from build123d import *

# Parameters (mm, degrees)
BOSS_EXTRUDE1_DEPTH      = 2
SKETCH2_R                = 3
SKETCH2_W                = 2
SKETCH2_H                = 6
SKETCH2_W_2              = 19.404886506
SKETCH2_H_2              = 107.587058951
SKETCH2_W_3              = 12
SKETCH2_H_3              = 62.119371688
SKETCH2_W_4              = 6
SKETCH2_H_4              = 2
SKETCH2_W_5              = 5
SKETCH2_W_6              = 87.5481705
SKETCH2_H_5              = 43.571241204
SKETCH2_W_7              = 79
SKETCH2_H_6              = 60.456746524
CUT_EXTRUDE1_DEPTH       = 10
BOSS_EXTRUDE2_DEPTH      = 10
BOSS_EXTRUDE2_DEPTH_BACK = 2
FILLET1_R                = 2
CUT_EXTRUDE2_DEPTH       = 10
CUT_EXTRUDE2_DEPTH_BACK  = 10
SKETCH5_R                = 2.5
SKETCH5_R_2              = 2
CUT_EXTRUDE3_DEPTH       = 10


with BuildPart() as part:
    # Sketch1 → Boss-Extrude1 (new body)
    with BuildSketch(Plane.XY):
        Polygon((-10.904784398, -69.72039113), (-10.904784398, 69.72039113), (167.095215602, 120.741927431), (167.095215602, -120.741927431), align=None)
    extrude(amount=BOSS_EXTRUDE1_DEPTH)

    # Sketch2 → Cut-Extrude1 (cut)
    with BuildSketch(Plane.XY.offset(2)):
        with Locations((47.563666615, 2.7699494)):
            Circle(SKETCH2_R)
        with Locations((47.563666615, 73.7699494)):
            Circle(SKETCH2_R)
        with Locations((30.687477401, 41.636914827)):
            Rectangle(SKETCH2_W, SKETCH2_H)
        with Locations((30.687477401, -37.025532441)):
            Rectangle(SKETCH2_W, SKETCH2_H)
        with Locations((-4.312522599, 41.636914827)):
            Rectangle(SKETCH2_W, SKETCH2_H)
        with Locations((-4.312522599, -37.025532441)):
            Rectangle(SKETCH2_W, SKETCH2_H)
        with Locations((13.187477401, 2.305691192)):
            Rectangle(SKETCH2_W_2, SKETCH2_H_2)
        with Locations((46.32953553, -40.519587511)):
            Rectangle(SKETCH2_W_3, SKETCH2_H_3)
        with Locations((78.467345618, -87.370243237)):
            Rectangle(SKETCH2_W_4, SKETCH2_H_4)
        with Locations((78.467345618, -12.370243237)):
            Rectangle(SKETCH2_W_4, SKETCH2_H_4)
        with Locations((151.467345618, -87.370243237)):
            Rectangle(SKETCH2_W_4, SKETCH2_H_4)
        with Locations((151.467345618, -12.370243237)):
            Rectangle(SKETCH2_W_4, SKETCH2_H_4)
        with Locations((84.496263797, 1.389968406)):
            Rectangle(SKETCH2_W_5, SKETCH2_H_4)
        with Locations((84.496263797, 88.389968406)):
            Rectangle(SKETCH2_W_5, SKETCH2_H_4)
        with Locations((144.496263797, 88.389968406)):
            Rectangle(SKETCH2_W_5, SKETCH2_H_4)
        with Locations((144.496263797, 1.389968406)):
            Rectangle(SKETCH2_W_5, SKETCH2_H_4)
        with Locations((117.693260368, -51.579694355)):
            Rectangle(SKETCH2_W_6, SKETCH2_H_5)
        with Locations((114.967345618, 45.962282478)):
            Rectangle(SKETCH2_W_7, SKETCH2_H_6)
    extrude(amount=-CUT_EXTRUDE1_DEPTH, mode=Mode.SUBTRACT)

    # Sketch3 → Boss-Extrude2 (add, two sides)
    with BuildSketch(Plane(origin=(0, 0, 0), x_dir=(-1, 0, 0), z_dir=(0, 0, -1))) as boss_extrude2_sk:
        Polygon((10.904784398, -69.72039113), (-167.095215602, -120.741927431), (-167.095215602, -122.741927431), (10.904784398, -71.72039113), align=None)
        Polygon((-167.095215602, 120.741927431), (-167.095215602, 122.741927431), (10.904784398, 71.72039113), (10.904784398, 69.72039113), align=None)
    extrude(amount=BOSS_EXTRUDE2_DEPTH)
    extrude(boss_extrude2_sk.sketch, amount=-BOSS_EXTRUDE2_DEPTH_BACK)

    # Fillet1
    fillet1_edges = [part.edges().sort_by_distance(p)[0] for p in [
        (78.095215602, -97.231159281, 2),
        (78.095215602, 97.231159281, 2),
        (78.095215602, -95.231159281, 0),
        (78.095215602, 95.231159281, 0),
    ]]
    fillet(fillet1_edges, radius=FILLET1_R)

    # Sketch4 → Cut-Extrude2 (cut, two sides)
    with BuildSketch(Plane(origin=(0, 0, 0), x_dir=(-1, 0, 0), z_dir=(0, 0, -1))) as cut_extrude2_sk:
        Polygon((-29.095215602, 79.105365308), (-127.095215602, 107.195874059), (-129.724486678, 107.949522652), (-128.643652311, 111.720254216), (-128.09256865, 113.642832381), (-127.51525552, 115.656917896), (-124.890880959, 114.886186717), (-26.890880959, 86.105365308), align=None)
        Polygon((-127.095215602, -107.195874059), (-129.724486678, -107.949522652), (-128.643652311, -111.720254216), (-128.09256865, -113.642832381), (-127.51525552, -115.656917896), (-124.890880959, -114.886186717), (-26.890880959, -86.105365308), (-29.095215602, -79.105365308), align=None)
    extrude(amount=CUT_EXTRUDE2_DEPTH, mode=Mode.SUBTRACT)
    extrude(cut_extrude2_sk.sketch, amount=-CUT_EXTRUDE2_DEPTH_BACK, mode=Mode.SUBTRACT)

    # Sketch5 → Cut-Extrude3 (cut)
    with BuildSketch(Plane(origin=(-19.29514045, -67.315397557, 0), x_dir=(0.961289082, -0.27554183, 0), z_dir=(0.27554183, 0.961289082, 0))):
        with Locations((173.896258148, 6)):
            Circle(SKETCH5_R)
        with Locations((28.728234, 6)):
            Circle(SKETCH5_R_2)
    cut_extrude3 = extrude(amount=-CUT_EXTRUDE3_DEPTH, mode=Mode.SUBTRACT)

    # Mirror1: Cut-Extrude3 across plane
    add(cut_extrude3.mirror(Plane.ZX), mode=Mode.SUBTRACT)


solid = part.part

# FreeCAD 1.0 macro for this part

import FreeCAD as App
import Part
import Sketcher
from FreeCAD import Vector
Q = App.Units.Quantity


def edges_at(feature, points):
    """Names of the edges that pass closest to the given points."""
    edges = feature.Shape.Edges
    near = lambda p: min(range(len(edges)), key=lambda i: edges[i].distToShape(Part.Vertex(*p))[0])
    return sorted({f"Edge{near(p) + 1}" for p in points})


def add_polygon(sketch, points):
    """Adds a closed chain of lines whose ends are joined by coincident constraints."""
    first, n = sketch.GeometryCount, len(points)
    for a, b in zip(points, points[1:] + points[:1]):
        sketch.addGeometry(Part.LineSegment(App.Vector(*a, 0), App.Vector(*b, 0)), False)
    for i in range(n):
        sketch.addConstraint(Sketcher.Constraint("Coincident", first + i, 2, first + (i + 1) % n, 1))

doc = App.newDocument("Part")
body = doc.addObject("PartDesign::Body", "Body")

# Sketch on XY plane
sketch1 = body.newObject("Sketcher::SketchObject", "Sketch")
sketch1.AttachmentSupport = (doc.getObject("XY_Plane"), [""])
sketch1.MapMode = "FlatFace"
add_polygon(sketch1, [(-11, 70), (-11, -70), (167, -121), (167, 121)])  # lines 0-3
sketch1.addConstraint([
    Sketcher.Constraint("Vertical", 0),
    Sketcher.Constraint("Vertical", 2),
    Sketcher.Constraint("Equal", 1, 3),
    Sketcher.Constraint("DistanceX", 0, 2, 1, 2, Q("178 mm")),
    Sketcher.Constraint("DistanceY", 0, 2, 0, 1, Q("139.440782 mm")),
    Sketcher.Constraint("DistanceY", 2, 1, 2, 2, Q("241.483855 mm")),
    Sketcher.Constraint("DistanceY", 0, 2, -1, 1, Q("69.720391 mm")),
    Sketcher.Constraint("DistanceX", 0, 2, -1, 1, Q("10.904784 mm")),
])
pad1 = body.newObject("PartDesign::Pad", "Pad")
pad1.Profile = sketch1
pad1.Length = 2

# Sketch on XY plane
sketch2 = body.newObject("Sketcher::SketchObject", "Sketch001")
sketch2.AttachmentSupport = (doc.getObject("XY_Plane"), [""])
sketch2.MapMode = "FlatFace"
sketch2.AttachmentOffset = App.Placement(Vector(0, 0, 2), App.Rotation())
sketch2.addGeometry(Part.Circle(Vector(47.6, 2.8, 0), Vector(0, 0, 1), 3), False)  # 0
sketch2.addGeometry(Part.Circle(Vector(47.6, 73.8, 0), Vector(0, 0, 1), 3), False)  # 1
add_polygon(sketch2, [(29.7, 44.6), (29.7, 38.6), (31.7, 38.6), (31.7, 44.6)])  # lines 2-5
add_polygon(sketch2, [(29.7, -34), (29.7, -40), (31.7, -40), (31.7, -34)])  # lines 6-9
add_polygon(sketch2, [(-5.3, 44.6), (-5.3, 38.6), (-3.3, 38.6), (-3.3, 44.6)])  # lines 10-13
add_polygon(sketch2, [(-5.3, -34), (-5.3, -40), (-3.3, -40), (-3.3, -34)])  # lines 14-17
add_polygon(sketch2, [(3.5, 56.1), (3.5, -51.5), (22.9, -51.5), (22.9, 56.1)])  # lines 18-21
add_polygon(sketch2, [(40.3, -9.5), (40.3, -71.6), (52.3, -71.6), (52.3, -9.5)])  # lines 22-25
add_polygon(sketch2, [(75.5, -86.4), (75.5, -88.4), (81.5, -88.4), (81.5, -86.4)])  # lines 26-29
add_polygon(sketch2, [(75.5, -11.4), (75.5, -13.4), (81.5, -13.4), (81.5, -11.4)])  # lines 30-33
add_polygon(sketch2, [(148.5, -86.4), (148.5, -88.4), (154.5, -88.4), (154.5, -86.4)])  # lines 34-37
add_polygon(sketch2, [(148.5, -11.4), (148.5, -13.4), (154.5, -13.4), (154.5, -11.4)])  # lines 38-41
add_polygon(sketch2, [(82, 2.4), (82, 0.4), (87, 0.4), (87, 2.4)])  # lines 42-45
add_polygon(sketch2, [(82, 89.4), (82, 87.4), (87, 87.4), (87, 89.4)])  # lines 46-49
add_polygon(sketch2, [(142, 89.4), (142, 87.4), (147, 87.4), (147, 89.4)])  # lines 50-53
add_polygon(sketch2, [(142, 2.4), (142, 0.4), (147, 0.4), (147, 2.4)])  # lines 54-57
add_polygon(sketch2, [(73.9, -29.8), (73.9, -73.4), (161.5, -73.4), (161.5, -29.8)])  # lines 58-61
add_polygon(sketch2, [(75.5, 76.2), (75.5, 15.7), (154.5, 15.7), (154.5, 76.2)])  # lines 62-65
sketch2.addConstraint([
    Sketcher.Constraint("Vertical", 2),
    Sketcher.Constraint("Horizontal", 3),
    Sketcher.Constraint("Vertical", 4),
    Sketcher.Constraint("Horizontal", 5),
    Sketcher.Constraint("Vertical", 6),
    Sketcher.Constraint("Horizontal", 7),
    Sketcher.Constraint("Vertical", 8),
    Sketcher.Constraint("Horizontal", 9),
    Sketcher.Constraint("Vertical", 10),
    Sketcher.Constraint("Horizontal", 11),
    Sketcher.Constraint("Vertical", 12),
    Sketcher.Constraint("Horizontal", 13),
    Sketcher.Constraint("Vertical", 14),
    Sketcher.Constraint("Horizontal", 15),
    Sketcher.Constraint("Vertical", 16),
    Sketcher.Constraint("Horizontal", 17),
    Sketcher.Constraint("Vertical", 18),
    Sketcher.Constraint("Horizontal", 19),
    Sketcher.Constraint("Vertical", 20),
    Sketcher.Constraint("Horizontal", 21),
    Sketcher.Constraint("Vertical", 22),
    Sketcher.Constraint("Horizontal", 23),
    Sketcher.Constraint("Vertical", 24),
    Sketcher.Constraint("Horizontal", 25),
    Sketcher.Constraint("Vertical", 26),
    Sketcher.Constraint("Horizontal", 27),
    Sketcher.Constraint("Vertical", 28),
    Sketcher.Constraint("Horizontal", 29),
    Sketcher.Constraint("Vertical", 30),
    Sketcher.Constraint("Horizontal", 31),
    Sketcher.Constraint("Vertical", 32),
    Sketcher.Constraint("Horizontal", 33),
    Sketcher.Constraint("Vertical", 34),
    Sketcher.Constraint("Horizontal", 35),
    Sketcher.Constraint("Vertical", 36),
    Sketcher.Constraint("Horizontal", 37),
    Sketcher.Constraint("Vertical", 38),
    Sketcher.Constraint("Horizontal", 39),
    Sketcher.Constraint("Vertical", 40),
    Sketcher.Constraint("Horizontal", 41),
    Sketcher.Constraint("Vertical", 42),
    Sketcher.Constraint("Horizontal", 43),
    Sketcher.Constraint("Vertical", 44),
    Sketcher.Constraint("Horizontal", 45),
    Sketcher.Constraint("Vertical", 46),
    Sketcher.Constraint("Horizontal", 47),
    Sketcher.Constraint("Vertical", 48),
    Sketcher.Constraint("Horizontal", 49),
    Sketcher.Constraint("Vertical", 50),
    Sketcher.Constraint("Horizontal", 51),
    Sketcher.Constraint("Vertical", 52),
    Sketcher.Constraint("Horizontal", 53),
    Sketcher.Constraint("Vertical", 54),
    Sketcher.Constraint("Horizontal", 55),
    Sketcher.Constraint("Vertical", 56),
    Sketcher.Constraint("Horizontal", 57),
    Sketcher.Constraint("Vertical", 58),
    Sketcher.Constraint("Horizontal", 59),
    Sketcher.Constraint("Vertical", 60),
    Sketcher.Constraint("Horizontal", 61),
    Sketcher.Constraint("Vertical", 62),
    Sketcher.Constraint("Horizontal", 63),
    Sketcher.Constraint("Vertical", 64),
    Sketcher.Constraint("Horizontal", 65),
    Sketcher.Constraint("Equal", 0, 1),
    Sketcher.Constraint("Horizontal", 3, 2, 10, 2),
    Sketcher.Constraint("Horizontal", 5, 2, 12, 2),
    Sketcher.Constraint("Horizontal", 7, 2, 14, 2),
    Sketcher.Constraint("Horizontal", 9, 2, 16, 2),
    Sketcher.Constraint("Horizontal", 27, 2, 34, 2),
    Sketcher.Constraint("Horizontal", 29, 2, 36, 2),
    Sketcher.Constraint("Horizontal", 31, 2, 38, 2),
    Sketcher.Constraint("Horizontal", 33, 2, 40, 2),
    Sketcher.Constraint("Horizontal", 47, 2, 50, 2),
    Sketcher.Constraint("Horizontal", 49, 2, 52, 2),
    Sketcher.Constraint("Horizontal", 43, 2, 54, 2),
    Sketcher.Constraint("Horizontal", 45, 2, 56, 2),
    Sketcher.Constraint("Vertical", 0, 3, 1, 3),
    Sketcher.Constraint("Vertical", 5, 2, 6, 2),
    Sketcher.Constraint("Vertical", 4, 2, 7, 2),
    Sketcher.Constraint("Vertical", 13, 2, 14, 2),
    Sketcher.Constraint("Vertical", 12, 2, 15, 2),
    Sketcher.Constraint("Vertical", 29, 2, 30, 2),
    Sketcher.Constraint("Vertical", 28, 2, 31, 2),
    Sketcher.Constraint("Vertical", 37, 2, 38, 2),
    Sketcher.Constraint("Vertical", 36, 2, 39, 2),
    Sketcher.Constraint("Vertical", 45, 2, 46, 2),
    Sketcher.Constraint("Vertical", 44, 2, 47, 2),
    Sketcher.Constraint("Vertical", 53, 2, 54, 2),
    Sketcher.Constraint("Vertical", 52, 2, 55, 2),
    Sketcher.Constraint("Vertical", 33, 2, 62, 2),
    Sketcher.Constraint("Vertical", 40, 2, 63, 2),
    Sketcher.Constraint("Equal", 9, 11),
    Sketcher.Constraint("Equal", 33, 35),
    Sketcher.Constraint("Equal", 49, 51),
    Sketcher.Constraint("Equal", 41, 2),
    Sketcher.Constraint("Equal", 4, 6),
    Sketcher.Constraint("Equal", 17, 26),
    Sketcher.Constraint("Equal", 28, 30),
    Sketcher.Constraint("Equal", 40, 42),
    Sketcher.Constraint("Equal", 44, 46),
    Sketcher.Constraint("Diameter", 0, Q("6 mm")),
    Sketcher.Constraint("DistanceX", 3, 1, 3, 2, Q("2 mm")),
    Sketcher.Constraint("DistanceX", 23, 1, 23, 2, Q("12 mm")),
    Sketcher.Constraint("DistanceX", 27, 1, 27, 2, Q("6 mm")),
    Sketcher.Constraint("DistanceX", 43, 1, 43, 2, Q("5 mm")),
    Sketcher.Constraint("DistanceX", 63, 1, 63, 2, Q("79 mm")),
    Sketcher.Constraint("DistanceX", 59, 1, 59, 2, Q("87.54817 mm")),
    Sketcher.Constraint("DistanceY", 18, 2, 18, 1, Q("107.587059 mm")),
    Sketcher.Constraint("DistanceY", 22, 2, 22, 1, Q("62.119372 mm")),
    Sketcher.Constraint("DistanceY", 58, 2, 58, 1, Q("43.571241 mm")),
    Sketcher.Constraint("DistanceY", 24, 2, -1, 1, Q("9.459902 mm")),
    Sketcher.Constraint("DistanceX", 19, 1, 19, 2, Q("19.404887 mm")),
    Sketcher.Constraint("DistanceY", 62, 2, 62, 1, Q("60.456747 mm")),
    Sketcher.Constraint("DistanceY", -1, 1, 0, 3, Q("2.769949 mm")),
    Sketcher.Constraint("DistanceY", -1, 1, 1, 3, Q("73.769949 mm")),
    Sketcher.Constraint("DistanceY", 18, 2, -1, 1, Q("51.487838 mm")),
    Sketcher.Constraint("DistanceX", -1, 1, 19, 2, Q("22.889921 mm")),
    Sketcher.Constraint("DistanceY", -1, 1, 42, 2, Q("0.389968 mm")),
    Sketcher.Constraint("DistanceY", -1, 1, 46, 2, Q("87.389968 mm")),
    Sketcher.Constraint("DistanceY", -1, 1, 62, 2, Q("15.733909 mm")),
    Sketcher.Constraint("DistanceX", -1, 1, 0, 3, Q("47.563667 mm")),
    Sketcher.Constraint("DistanceX", -1, 1, 2, 2, Q("29.687477 mm")),
    Sketcher.Constraint("DistanceY", -1, 1, 2, 2, Q("38.636915 mm")),
    Sketcher.Constraint("DistanceY", 6, 2, -1, 1, Q("40.025532 mm")),
    Sketcher.Constraint("DistanceX", 10, 2, -1, 1, Q("5.312523 mm")),
    Sketcher.Constraint("DistanceX", -1, 1, 22, 2, Q("40.329536 mm")),
    Sketcher.Constraint("DistanceX", -1, 1, 26, 2, Q("75.467346 mm")),
    Sketcher.Constraint("DistanceY", 26, 2, -1, 1, Q("88.370243 mm")),
    Sketcher.Constraint("DistanceY", 30, 2, -1, 1, Q("13.370243 mm")),
    Sketcher.Constraint("DistanceX", -1, 1, 42, 2, Q("81.996264 mm")),
    Sketcher.Constraint("DistanceX", -1, 1, 50, 2, Q("141.996264 mm")),
    Sketcher.Constraint("DistanceX", -1, 1, 58, 2, Q("73.919175 mm")),
    Sketcher.Constraint("DistanceY", 58, 2, -1, 1, Q("73.365315 mm")),
])
pocket1 = body.newObject("PartDesign::Pocket", "Pocket")
pocket1.Profile = sketch2
pocket1.Length = 10

# Sketch on XY plane
sketch3 = body.newObject("Sketcher::SketchObject", "Sketch002")
sketch3.AttachmentSupport = (doc.getObject("XY_Plane"), [""])
sketch3.MapMode = "FlatFace"
add_polygon(sketch3, [(-10.9, -69.7), (167.1, -120.7), (167.1, -122.7), (-10.9, -71.7)])  # lines 0-3
add_polygon(sketch3, [(167.1, 122.7), (167.1, 120.7), (-10.9, 69.7), (-10.9, 71.7)])  # lines 4-7
sketch3.addConstraint([
    Sketcher.Constraint("Vertical", 1),
    Sketcher.Constraint("Vertical", 3),
    Sketcher.Constraint("Vertical", 4),
    Sketcher.Constraint("Vertical", 6),
    Sketcher.Constraint("Symmetric", 0, 2, 4, 2, -1),
    Sketcher.Constraint("Symmetric", 3, 2, 5, 2, -1),
    Sketcher.Constraint("Parallel", 0, 2),
    Sketcher.Constraint("Parallel", 5, 7),
    Sketcher.Constraint("Equal", 3, 4),
    Sketcher.Constraint("DistanceY", 1, 2, 1, 1, Q("2 mm")),
    Sketcher.Constraint("DistanceX", 2, 2, 0, 2, Q("178 mm")),
    Sketcher.Constraint("DistanceY", 2, 2, -1, 1, Q("71.720391 mm")),
    Sketcher.Constraint("DistanceY", 3, 2, 4, 2, Q("190.462319 mm")),
    Sketcher.Constraint("DistanceX", -1, 1, 0, 2, Q("167.095216 mm")),
])
pad2 = body.newObject("PartDesign::Pad", "Pad001")
pad2.Profile = sketch3
pad2.Type = "TwoLengths"
pad2.Length = 10
pad2.Length2 = 2
pad2.Reversed = True
doc.recompute()

fillet = body.newObject("PartDesign::Fillet", "Fillet")
fillet.Base = (pad2, edges_at(pad2, [
    (78.095, -97.231, 2),
    (78.095, 97.231, 2),
    (78.095, -95.231, 0),
    (78.095, 95.231, 0),
]))
fillet.Radius = 2

# Sketch on XY plane
sketch4 = body.newObject("Sketcher::SketchObject", "Sketch003")
sketch4.AttachmentSupport = (doc.getObject("XY_Plane"), [""])
sketch4.MapMode = "FlatFace"
add_polygon(sketch4, [(127.1, 107.2), (29.1, 79.1), (26.9, 86.1), (124.9, 114.9), (127.5, 115.7), (128.1, 113.6), (128.6, 111.7), (129.7, 107.9)])  # lines 0-7
add_polygon(sketch4, [(127.1, -107.2), (129.7, -107.9), (128.6, -111.7), (128.1, -113.6), (127.5, -115.7), (124.9, -114.9), (26.9, -86.1), (29.1, -79.1)])  # lines 8-15
sketch4.addConstraint([
    Sketcher.Constraint("Symmetric", 6, 2, 8, 2, -1),
    Sketcher.Constraint("Symmetric", 5, 2, 9, 2, -1),
    Sketcher.Constraint("Symmetric", 4, 2, 10, 2, -1),
    Sketcher.Constraint("Symmetric", 3, 2, 11, 2, -1),
    Sketcher.Constraint("Symmetric", 2, 2, 12, 2, -1),
    Sketcher.Constraint("Symmetric", 1, 2, 13, 2, -1),
    Sketcher.Constraint("Symmetric", 0, 2, 14, 2, -1),
    Sketcher.Constraint("Symmetric", 7, 2, 15, 2, -1),
    Sketcher.Constraint("Parallel", 2, 3),
    Sketcher.Constraint("Perpendicular", 0, 4),
    Sketcher.Constraint("Parallel", 4, 5),
    Sketcher.Constraint("Parallel", 5, 6),
    Sketcher.Constraint("Perpendicular", 6, 7),
    Sketcher.Constraint("Distance", 5, Q("2 mm")),
    Sketcher.Constraint("DistanceY", 0, 2, 1, 2, Q("7 mm")),
    Sketcher.Constraint("DistanceX", 1, 2, 2, 2, Q("98 mm")),
    Sketcher.Constraint("Distance", 0, Q("101.94644 mm")),
    Sketcher.Constraint("Distance", 3, Q("2.735209 mm")),
    Sketcher.Constraint("Distance", 6, Q("3.922578 mm")),
    Sketcher.Constraint("Distance", 7, Q("2.735151 mm")),
    Sketcher.Constraint("DistanceX", -1, 1, 1, 2, Q("26.890881 mm")),
    Sketcher.Constraint("DistanceX", -1, 1, 4, 2, Q("128.092569 mm")),
    Sketcher.Constraint("DistanceY", 1, 2, 2, 2, Q("28.780821 mm")),
    Sketcher.Constraint("DistanceY", 9, 2, 0, 2, Q("190.82562 mm")),
])
pocket2 = body.newObject("PartDesign::Pocket", "Pocket001")
pocket2.Profile = sketch4
pocket2.Type = "ThroughAll"
pocket2.Midplane = True

# Sketch on an angled plane
sketch5 = body.newObject("Sketcher::SketchObject", "Sketch004")
sketch5.Placement = App.Placement(Vector(-19.29514, -67.315398, 0), App.Rotation(Vector(0.961289082, -0.27554183, 0), Vector(0, 0, -0.999999999), Vector(0.27554183, 0.961289082, 0), "ZXY"))
sketch5.addGeometry([
    Part.Circle(Vector(173.9, 6, 0), Vector(0, 0, 1), 2.5),
    Part.Circle(Vector(28.7, 6, 0), Vector(0, 0, 1), 2),
], False)
sketch5.addConstraint([
    Sketcher.Constraint("Horizontal", 0, 3, 1, 3),
    Sketcher.Constraint("Diameter", 0, Q("5 mm")),
    Sketcher.Constraint("Diameter", 1, Q("4 mm")),
    Sketcher.Constraint("DistanceY", -1, 1, 0, 3, Q("6 mm")),
    Sketcher.Constraint("DistanceX", -1, 1, 0, 3, Q("173.896258 mm")),
    Sketcher.Constraint("DistanceX", -1, 1, 1, 3, Q("28.728234 mm")),
])
pocket3 = body.newObject("PartDesign::Pocket", "Pocket002")
pocket3.Profile = sketch5
pocket3.Length = 10
doc.recompute()

mirrored = body.newObject("PartDesign::Mirrored", "Mirrored")
mirrored.Originals = [pocket3]
mirrored.MirrorPlane = (doc.getObject("XZ_Plane"), [""])
body.Tip = mirrored

doc.recompute()
